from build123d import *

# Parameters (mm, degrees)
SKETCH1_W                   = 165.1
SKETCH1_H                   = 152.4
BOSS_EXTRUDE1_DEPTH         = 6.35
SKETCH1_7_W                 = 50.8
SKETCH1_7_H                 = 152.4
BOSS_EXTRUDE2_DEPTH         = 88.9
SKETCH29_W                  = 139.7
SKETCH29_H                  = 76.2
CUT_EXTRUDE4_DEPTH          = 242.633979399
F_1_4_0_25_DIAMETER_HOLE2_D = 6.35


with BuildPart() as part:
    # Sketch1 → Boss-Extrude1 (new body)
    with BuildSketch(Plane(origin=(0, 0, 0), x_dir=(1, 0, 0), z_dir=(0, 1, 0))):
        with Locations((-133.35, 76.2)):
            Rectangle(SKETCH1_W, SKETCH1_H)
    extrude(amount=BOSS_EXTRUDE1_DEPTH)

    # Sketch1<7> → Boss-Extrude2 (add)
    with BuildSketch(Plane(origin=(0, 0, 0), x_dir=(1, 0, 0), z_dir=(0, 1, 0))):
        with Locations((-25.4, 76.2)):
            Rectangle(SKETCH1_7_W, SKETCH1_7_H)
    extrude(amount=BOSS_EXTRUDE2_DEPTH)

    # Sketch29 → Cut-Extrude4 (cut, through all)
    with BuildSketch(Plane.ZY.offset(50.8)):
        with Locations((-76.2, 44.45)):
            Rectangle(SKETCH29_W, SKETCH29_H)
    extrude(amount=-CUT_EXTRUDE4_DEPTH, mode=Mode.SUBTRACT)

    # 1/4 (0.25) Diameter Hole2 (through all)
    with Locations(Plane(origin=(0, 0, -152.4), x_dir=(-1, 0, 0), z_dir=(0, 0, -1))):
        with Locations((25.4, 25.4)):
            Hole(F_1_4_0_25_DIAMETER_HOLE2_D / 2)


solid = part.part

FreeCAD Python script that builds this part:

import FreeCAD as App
import Part
import Sketcher

V = App.Vector
Q = App.Units.Quantity


def add_polygon(sketch, points):
    """Adds a closed chain of lines whose ends are joined by coincident constraints."""
    first, n = sketch.GeometryCount, len(points)
    for a, b in zip(points, points[1:] + points[:1]):
        sketch.addGeometry(Part.LineSegment(App.Vector(*a, 0), App.Vector(*b, 0)), False)
    for i in range(n):
        sketch.addConstraint(Sketcher.Constraint("Coincident", first + i, 2, first + (i + 1) % n, 1))

doc = App.newDocument("Part")
body = doc.addObject("PartDesign::Body", "Body")

# Sketch on XZ plane
sketch1 = body.newObject("Sketcher::SketchObject", "Sketch")
sketch1.AttachmentSupport = (doc.getObject("XZ_Plane"), [""])
sketch1.MapMode = "FlatFace"
add_polygon(sketch1, [(-215.9, -152.4), (-215.9, 0), (-50.8, 0), (-50.8, -152.4)])  # lines 0-3
sketch1.addConstraint(Sketcher.Constraint("Vertical", 0))
sketch1.addConstraint(Sketcher.Constraint("Horizontal", 1))
sketch1.addConstraint(Sketcher.Constraint("Vertical", 2))
sketch1.addConstraint(Sketcher.Constraint("Horizontal", 3))
sketch1.addConstraint(Sketcher.Constraint("PointOnObject", 0, 2, -1))
sketch1.addConstraint(Sketcher.Constraint("DistanceY", 0, 1, 0, 2, Q("6 in")))
sketch1.addConstraint(Sketcher.Constraint("DistanceX", 1, 1, 1, 2, Q("6.5 in")))
sketch1.addConstraint(Sketcher.Constraint("DistanceX", 1, 2, -1, 1, Q("2 in")))
pad1 = body.newObject("PartDesign::Pad", "Pad")
pad1.Profile = sketch1
pad1.Length = Q("0.25 in")
pad1.Reversed = True

# Sketch on XZ plane
sketch2 = body.newObject("Sketcher::SketchObject", "Sketch001")
sketch2.AttachmentSupport = (doc.getObject("XZ_Plane"), [""])
sketch2.MapMode = "FlatFace"
add_polygon(sketch2, [(-50.8, -152.4), (-50.8, 0), (0, 0), (0, -152.4)])  # lines 0-3
sketch2.addConstraint(Sketcher.Constraint("Vertical", 0))
sketch2.addConstraint(Sketcher.Constraint("Horizontal", 1))
sketch2.addConstraint(Sketcher.Constraint("Vertical", 2))
sketch2.addConstraint(Sketcher.Constraint("Horizontal", 3))
sketch2.addConstraint(Sketcher.Constraint("Coincident", 1, 2, -1, 1))
sketch2.addConstraint(Sketcher.Constraint("DistanceX", 1, 1, 1, 2, Q("2 in")))
sketch2.addConstraint(Sketcher.Constraint("DistanceY", 0, 1, 0, 2, Q("6 in")))
pad2 = body.newObject("PartDesign::Pad", "Pad001")
pad2.Profile = sketch2
pad2.Length = Q("3.5 in")
pad2.Reversed = True

# Sketch on YZ plane
sketch3 = body.newObject("Sketcher::SketchObject", "Sketch002")
sketch3.AttachmentSupport = (doc.getObject("YZ_Plane"), [""])
sketch3.MapMode = "FlatFace"
sketch3.AttachmentOffset = App.Placement(V(0, 0, -2 * 25.4), App.Rotation())
add_polygon(sketch3, [(82.55, -146.05), (6.35, -146.05), (6.35, -6.35), (82.55, -6.35)])  # lines 0-3
sketch3.addConstraint(Sketcher.Constraint("Horizontal", 0))
sketch3.addConstraint(Sketcher.Constraint("Vertical", 1))
sketch3.addConstraint(Sketcher.Constraint("Horizontal", 2))
sketch3.addConstraint(Sketcher.Constraint("Vertical", 3))
sketch3.addConstraint(Sketcher.Constraint("DistanceX", 0, 2, 0, 1, Q("3 in")))
sketch3.addConstraint(Sketcher.Constraint("DistanceY", 1, 1, 1, 2, Q("5.5 in")))
sketch3.addConstraint(Sketcher.Constraint("DistanceX", -1, 1, 0, 2, Q("0.25 in")))
sketch3.addConstraint(Sketcher.Constraint("DistanceY", 0, 2, -1, 1, Q("5.75 in")))
pocket1 = body.newObject("PartDesign::Pocket", "Pocket")
pocket1.Profile = sketch3
pocket1.Type = "ThroughAll"
pocket1.Reversed = True

# Sketch on XY plane
sketch4 = body.newObject("Sketcher::SketchObject", "Sketch003")
sketch4.AttachmentSupport = (doc.getObject("XY_Plane"), [""])
sketch4.MapMode = "FlatFace"
sketch4.AttachmentOffset = App.Placement(V(0, 0, -6 * 25.4), App.Rotation())
sketch4.addGeometry(Part.Circle(V(-25.4, 25.4, 0), V(0, 0, 1), 3.175), False)
sketch4.addConstraint(Sketcher.Constraint("Diameter", 0, Q("0.25 in")))
sketch4.addConstraint(Sketcher.Constraint("DistanceX", 0, 3, -1, 1, Q("1 in")))
sketch4.addConstraint(Sketcher.Constraint("DistanceY", -1, 1, 0, 3, Q("1 in")))
doc.recompute()
hole = body.newObject("PartDesign::Hole", "Hole")
hole.Profile = sketch4
hole.ThreadType = "None"
hole.Diameter = Q("0.25 in")
hole.DepthType = "ThroughAll"
hole.Reversed = True

doc.recompute()
